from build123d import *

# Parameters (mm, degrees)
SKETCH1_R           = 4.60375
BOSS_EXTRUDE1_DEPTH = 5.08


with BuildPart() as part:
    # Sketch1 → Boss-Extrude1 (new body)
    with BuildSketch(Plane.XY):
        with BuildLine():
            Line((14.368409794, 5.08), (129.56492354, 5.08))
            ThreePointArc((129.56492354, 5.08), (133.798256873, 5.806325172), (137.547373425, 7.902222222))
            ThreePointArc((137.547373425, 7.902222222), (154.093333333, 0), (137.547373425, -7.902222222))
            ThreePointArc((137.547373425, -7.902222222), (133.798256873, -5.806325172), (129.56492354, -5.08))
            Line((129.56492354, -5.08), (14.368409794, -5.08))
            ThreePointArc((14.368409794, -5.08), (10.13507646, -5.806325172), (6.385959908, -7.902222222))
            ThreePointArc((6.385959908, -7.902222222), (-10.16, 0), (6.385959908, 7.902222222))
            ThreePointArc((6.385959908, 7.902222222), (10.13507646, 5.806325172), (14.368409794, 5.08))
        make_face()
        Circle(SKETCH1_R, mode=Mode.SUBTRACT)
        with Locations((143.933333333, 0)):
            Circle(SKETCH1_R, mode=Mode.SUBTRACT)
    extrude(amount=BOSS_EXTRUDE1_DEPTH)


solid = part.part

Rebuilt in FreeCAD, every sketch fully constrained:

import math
import FreeCAD as App
import Part
import Sketcher
from FreeCAD import Vector
Q = App.Units.Quantity

doc = App.newDocument("Part")
body = doc.addObject("PartDesign::Body", "Body")

# Sketch on XY plane
sketch1 = body.newObject("Sketcher::SketchObject", "Sketch")
sketch1.AttachmentSupport = (doc.getObject("XY_Plane"), [""])
sketch1.MapMode = "FlatFace"
sketch1.addGeometry([
    Part.LineSegment(Vector(129.6, 5.1, 0), Vector(14.4, 5.1, 0)),  # 0
    Part.ArcOfCircle(Part.Circle(Vector(14.4, 17.8, 0), Vector(0, 0, 1), 12.7), math.radians(-129), math.radians(-90)),  # 1
    Part.ArcOfCircle(Part.Circle(Vector(0, 0, 0), Vector(0, 0, 1), 10.2), math.radians(51), math.radians(309)),  # 2
    Part.ArcOfCircle(Part.Circle(Vector(14.4, -17.8, 0), Vector(0, 0, 1), 12.7), math.radians(90), math.radians(129)),  # 3
    Part.LineSegment(Vector(14.4, -5.1, 0), Vector(129.6, -5.1, 0)),  # 4
    Part.ArcOfCircle(Part.Circle(Vector(129.6, -17.8, 0), Vector(0, 0, 1), 12.7), math.radians(51), math.radians(90)),  # 5
    Part.ArcOfCircle(Part.Circle(Vector(143.9, 0, 0), Vector(0, 0, 1), 10.2), math.radians(-129), math.radians(129)),  # 6
    Part.ArcOfCircle(Part.Circle(Vector(129.6, 17.8, 0), Vector(0, 0, 1), 12.7), math.radians(-90), math.radians(-51)),  # 7
    Part.Circle(Vector(143.9, 0, 0), Vector(0, 0, 1), 4.6),  # 8
    Part.Circle(Vector(0, 0, 0), Vector(0, 0, 1), 4.6),  # 9
], False)
sketch1.addConstraint([
    Sketcher.Constraint("Tangent", 0, 2, 1, 2),
    Sketcher.Constraint("Tangent", 1, 1, 2, 1),
    Sketcher.Constraint("Tangent", 2, 2, 3, 2),
    Sketcher.Constraint("Tangent", 3, 1, 4, 1),
    Sketcher.Constraint("Tangent", 4, 2, 5, 2),
    Sketcher.Constraint("Tangent", 5, 1, 6, 1),
    Sketcher.Constraint("Tangent", 6, 2, 7, 2),
    Sketcher.Constraint("Tangent", 7, 1, 0, 1),
    Sketcher.Constraint("Horizontal", 0),
    Sketcher.Constraint("Horizontal", 4),
    Sketcher.Constraint("Coincident", 2, 3, -1, 1),
    Sketcher.Constraint("Coincident", 9, 3, -1, 1),
    Sketcher.Constraint("Coincident", 8, 3, 6, 3),
    Sketcher.Constraint("Equal", 1, 3),
    Sketcher.Constraint("Equal", 3, 5),
    Sketcher.Constraint("Equal", 2, 6),
    Sketcher.Constraint("Equal", 5, 7),
    Sketcher.Constraint("Equal", 8, 9),
    Sketcher.Constraint("Symmetric", 5, 3, 7, 3, -1),
    Sketcher.Constraint("Radius", 1, Q("0.5 in")),
    Sketcher.Constraint("Radius", 2, Q("0.4 in")),
    Sketcher.Constraint("Diameter", 8, Q("0.3625 in")),
    Sketcher.Constraint("DistanceY", -1, 1, 1, 3, Q("0.7 in")),
    Sketcher.Constraint("DistanceX", 0, 2, 0, 1, Q("115.196514 mm")),
])
pad1 = body.newObject("PartDesign::Pad", "Pad")
pad1.Profile = sketch1
pad1.Length = Q("0.2 in")

doc.recompute()
